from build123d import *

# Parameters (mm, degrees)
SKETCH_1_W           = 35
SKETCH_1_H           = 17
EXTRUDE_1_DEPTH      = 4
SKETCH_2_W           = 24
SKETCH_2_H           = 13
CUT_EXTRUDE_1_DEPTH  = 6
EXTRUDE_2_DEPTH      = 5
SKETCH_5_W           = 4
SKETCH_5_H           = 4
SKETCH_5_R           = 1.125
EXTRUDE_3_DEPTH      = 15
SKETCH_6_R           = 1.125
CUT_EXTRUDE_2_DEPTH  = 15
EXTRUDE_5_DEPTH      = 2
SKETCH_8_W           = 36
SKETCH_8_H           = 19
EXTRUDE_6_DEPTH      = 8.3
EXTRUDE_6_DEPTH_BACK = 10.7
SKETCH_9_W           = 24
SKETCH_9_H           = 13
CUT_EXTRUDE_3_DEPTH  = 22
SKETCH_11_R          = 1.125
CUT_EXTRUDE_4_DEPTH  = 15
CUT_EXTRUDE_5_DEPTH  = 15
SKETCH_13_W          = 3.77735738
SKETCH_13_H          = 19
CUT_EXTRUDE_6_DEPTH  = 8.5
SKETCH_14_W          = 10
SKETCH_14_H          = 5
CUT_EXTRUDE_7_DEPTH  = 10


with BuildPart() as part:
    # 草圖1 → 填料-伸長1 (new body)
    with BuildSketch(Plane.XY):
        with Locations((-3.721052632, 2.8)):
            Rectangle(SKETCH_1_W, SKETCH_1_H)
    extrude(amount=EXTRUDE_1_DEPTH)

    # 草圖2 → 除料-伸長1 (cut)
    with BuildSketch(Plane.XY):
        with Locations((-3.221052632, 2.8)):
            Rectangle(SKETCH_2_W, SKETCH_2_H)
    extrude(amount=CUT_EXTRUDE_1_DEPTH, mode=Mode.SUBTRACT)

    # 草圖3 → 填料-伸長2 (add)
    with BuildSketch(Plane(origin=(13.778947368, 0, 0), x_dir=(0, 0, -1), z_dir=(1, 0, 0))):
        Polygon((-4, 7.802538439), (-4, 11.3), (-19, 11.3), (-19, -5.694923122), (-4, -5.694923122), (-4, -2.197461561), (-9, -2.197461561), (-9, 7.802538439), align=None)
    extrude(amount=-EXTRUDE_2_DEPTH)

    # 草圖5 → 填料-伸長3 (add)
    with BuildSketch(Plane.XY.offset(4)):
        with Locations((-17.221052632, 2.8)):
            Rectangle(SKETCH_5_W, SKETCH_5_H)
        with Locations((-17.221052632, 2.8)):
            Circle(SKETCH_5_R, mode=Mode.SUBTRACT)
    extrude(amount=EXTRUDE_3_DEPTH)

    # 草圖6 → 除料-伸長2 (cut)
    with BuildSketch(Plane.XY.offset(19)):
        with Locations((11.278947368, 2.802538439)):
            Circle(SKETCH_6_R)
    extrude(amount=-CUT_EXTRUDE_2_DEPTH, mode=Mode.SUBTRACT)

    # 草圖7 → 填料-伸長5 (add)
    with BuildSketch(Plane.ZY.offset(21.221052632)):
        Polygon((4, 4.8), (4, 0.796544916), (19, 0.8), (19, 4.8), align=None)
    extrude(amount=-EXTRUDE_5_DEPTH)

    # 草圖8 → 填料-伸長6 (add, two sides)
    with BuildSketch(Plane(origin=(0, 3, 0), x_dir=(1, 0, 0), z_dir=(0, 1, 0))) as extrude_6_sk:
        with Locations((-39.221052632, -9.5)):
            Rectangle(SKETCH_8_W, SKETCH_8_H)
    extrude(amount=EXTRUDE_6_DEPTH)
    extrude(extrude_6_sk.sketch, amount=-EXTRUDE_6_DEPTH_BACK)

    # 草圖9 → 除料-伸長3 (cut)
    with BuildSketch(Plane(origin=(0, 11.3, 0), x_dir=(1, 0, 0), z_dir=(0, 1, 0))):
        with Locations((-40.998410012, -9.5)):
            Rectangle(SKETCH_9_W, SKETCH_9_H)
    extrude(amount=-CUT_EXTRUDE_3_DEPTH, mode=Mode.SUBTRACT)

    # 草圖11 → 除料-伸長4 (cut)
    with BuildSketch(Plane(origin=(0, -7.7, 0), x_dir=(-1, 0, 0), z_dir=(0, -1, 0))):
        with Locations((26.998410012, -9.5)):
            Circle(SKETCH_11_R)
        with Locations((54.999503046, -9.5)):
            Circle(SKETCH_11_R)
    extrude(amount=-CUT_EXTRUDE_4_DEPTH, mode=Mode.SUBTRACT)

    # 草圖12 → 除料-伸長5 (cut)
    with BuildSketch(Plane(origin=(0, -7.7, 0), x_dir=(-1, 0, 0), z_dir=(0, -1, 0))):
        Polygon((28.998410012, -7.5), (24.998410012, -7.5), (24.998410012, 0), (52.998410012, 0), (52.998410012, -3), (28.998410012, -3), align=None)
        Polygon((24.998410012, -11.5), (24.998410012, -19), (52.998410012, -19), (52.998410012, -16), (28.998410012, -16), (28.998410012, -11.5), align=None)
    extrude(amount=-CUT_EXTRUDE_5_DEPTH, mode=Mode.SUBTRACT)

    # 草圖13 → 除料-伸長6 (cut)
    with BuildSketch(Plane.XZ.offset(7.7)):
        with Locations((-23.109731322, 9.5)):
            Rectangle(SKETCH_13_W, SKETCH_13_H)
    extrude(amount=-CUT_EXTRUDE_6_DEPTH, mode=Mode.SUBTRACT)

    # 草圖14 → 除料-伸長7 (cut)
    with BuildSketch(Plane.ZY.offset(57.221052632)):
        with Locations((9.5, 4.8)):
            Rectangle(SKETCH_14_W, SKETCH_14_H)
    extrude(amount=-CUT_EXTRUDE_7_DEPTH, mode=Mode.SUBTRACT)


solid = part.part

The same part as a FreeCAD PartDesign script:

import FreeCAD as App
import Part
import Sketcher
from FreeCAD import Vector
Q = App.Units.Quantity


def add_polygon(sketch, points):
    """Adds a closed chain of lines whose ends are joined by coincident constraints."""
    first, n = sketch.GeometryCount, len(points)
    for a, b in zip(points, points[1:] + points[:1]):
        sketch.addGeometry(Part.LineSegment(App.Vector(*a, 0), App.Vector(*b, 0)), False)
    for i in range(n):
        sketch.addConstraint(Sketcher.Constraint("Coincident", first + i, 2, first + (i + 1) % n, 1))

doc = App.newDocument("Part")
params = doc.addObject("Spreadsheet::Sheet", "Params")
for row, (alias, value) in enumerate([
    ("sketch1_width", "35 mm"),
    ("sketch1_height", "17 mm"),
    ("pad1_length", "4 mm"),
    ("sketch2_width", "24 mm"),
    ("sketch2_height", "13 mm"),
    ("pocket1_length", "6 mm"),
    ("sketch3_width", "10 mm"),
    ("sketch3_height", "15 mm"),
    ("sketch3_height2", "5 mm"),
    ("pad2_length", "5 mm"),
    ("sketch4_diameter", "2.25 mm"),
    ("sketch4_width", "4 mm"),
    ("pad3_length", "15 mm"),
    ("sketch5_diameter", "2.25 mm"),
    ("pocket2_length", "15 mm"),
    ("sketch6_width", "4 mm"),
    ("sketch6_height", "15 mm"),
    ("pad4_length", "2 mm"),
    ("sketch7_width", "36 mm"),
    ("sketch7_height", "19 mm"),
    ("pad5_length", "8.3 mm"),
    ("pad5_length2", "10.7 mm"),
    ("sketch8_width", "24 mm"),
    ("sketch8_height", "13 mm"),
    ("pocket3_length", "22 mm"),
    ("sketch9_diameter", "2.25 mm"),
    ("pocket4_length", "15 mm"),
    ("sketch10_width", "4 mm"),
    ("sketch10_width2", "24 mm"),
    ("sketch10_height", "3 mm"),
    ("sketch10_height2", "4.5 mm"),
    ("pocket5_length", "15 mm"),
    ("sketch11_height", "19 mm"),
    ("pocket6_length", "8.5 mm"),
    ("sketch12_width", "5 mm"),
    ("sketch12_height", "10 mm"),
    ("pocket7_length", "10 mm"),
], start=1):
    params.set(f"A{row}", alias)
    params.set(f"B{row}", "=" + value)
    params.setAlias(f"B{row}", alias)

body = doc.addObject("PartDesign::Body", "Body")

sketch1 = doc.addObject("Sketcher::SketchObject", "Sketch")
body.addObject(sketch1)
sketch1.AttachmentSupport = (doc.XY_Plane, [""])
sketch1.MapMode = "FlatFace"
add_polygon(sketch1, [(-21, 11), (-21, -6), (14, -6), (14, 11)])
sketch1.addConstraint([
    Sketcher.Constraint("Vertical", 0),
    Sketcher.Constraint("Horizontal", 1),
    Sketcher.Constraint("Vertical", 2),
    Sketcher.Constraint("Horizontal", 3),
    Sketcher.Constraint("DistanceX", 1, 1, 1, 2, Q("35 mm")),
    Sketcher.Constraint("DistanceY", 0, 2, 0, 1, Q("17 mm")),
    Sketcher.Constraint("DistanceY", 0, 2, -1, 1, Q("5.7 mm")),
    Sketcher.Constraint("DistanceX", 0, 2, -1, 1, Q("21.221053 mm")),
])
sketch1.setExpression("Constraints[8]", "Params.sketch1_width")
sketch1.setExpression("Constraints[9]", "Params.sketch1_height")
pad1 = doc.addObject("PartDesign::Pad", "Pad")
body.addObject(pad1)
pad1.Profile = sketch1
pad1.setExpression("Length", "Params.pad1_length")

sketch2 = doc.addObject("Sketcher::SketchObject", "Sketch001")
body.addObject(sketch2)
sketch2.AttachmentSupport = (doc.XY_Plane, [""])
sketch2.MapMode = "FlatFace"
add_polygon(sketch2, [(-15, 9), (-15, -4), (9, -4), (9, 9)])
sketch2.addConstraint([
    Sketcher.Constraint("Vertical", 0),
    Sketcher.Constraint("Horizontal", 1),
    Sketcher.Constraint("Vertical", 2),
    Sketcher.Constraint("Horizontal", 3),
    Sketcher.Constraint("DistanceX", 1, 1, 1, 2, Q("24 mm")),
    Sketcher.Constraint("DistanceY", 0, 2, 0, 1, Q("13 mm")),
    Sketcher.Constraint("DistanceY", 0, 2, -1, 1, Q("3.7 mm")),
    Sketcher.Constraint("DistanceX", 0, 2, -1, 1, Q("15.221053 mm")),
])
sketch2.setExpression("Constraints[8]", "Params.sketch2_width")
sketch2.setExpression("Constraints[9]", "Params.sketch2_height")
pocket1 = doc.addObject("PartDesign::Pocket", "Pocket")
body.addObject(pocket1)
pocket1.Profile = sketch2
pocket1.setExpression("Length", "Params.pocket1_length")
pocket1.Reversed = True

sketch3 = doc.addObject("Sketcher::SketchObject", "Sketch002")
body.addObject(sketch3)
sketch3.AttachmentSupport = (doc.YZ_Plane, [""])
sketch3.MapMode = "FlatFace"
sketch3.AttachmentOffset = App.Placement(Vector(0, 0, 13.778947), App.Rotation())
add_polygon(sketch3, [(7.8, 4), (11.3, 4), (11.3, 19), (-5.7, 19), (-5.7, 4), (-2.2, 4), (-2.2, 9), (7.8, 9)])
sketch3.addConstraint([
    Sketcher.Constraint("Horizontal", 0),
    Sketcher.Constraint("Vertical", 1),
    Sketcher.Constraint("Horizontal", 2),
    Sketcher.Constraint("Vertical", 3),
    Sketcher.Constraint("Horizontal", 4),
    Sketcher.Constraint("Vertical", 5),
    Sketcher.Constraint("Horizontal", 6),
    Sketcher.Constraint("Vertical", 7),
    Sketcher.Constraint("Horizontal", 0, 2, 3, 2),
    Sketcher.Constraint("Equal", 0, 4),
    Sketcher.Constraint("DistanceX", 6, 1, 6, 2, Q("10 mm")),
    Sketcher.Constraint("DistanceY", 1, 1, 1, 2, Q("15 mm")),
    Sketcher.Constraint("DistanceY", 5, 1, 5, 2, Q("5 mm")),
    Sketcher.Constraint("DistanceY", -1, 1, 0, 2, Q("4 mm")),
    Sketcher.Constraint("DistanceX", -1, 1, 0, 2, Q("11.3 mm")),
    Sketcher.Constraint("DistanceX", 0, 1, 0, 2, Q("3.497462 mm")),
])
sketch3.setExpression("Constraints[18]", "Params.sketch3_width")
sketch3.setExpression("Constraints[19]", "Params.sketch3_height")
sketch3.setExpression("Constraints[20]", "Params.sketch3_height2")
pad2 = doc.addObject("PartDesign::Pad", "Pad001")
body.addObject(pad2)
pad2.Profile = sketch3
pad2.setExpression("Length", "Params.pad2_length")
pad2.Reversed = True

sketch4 = doc.addObject("Sketcher::SketchObject", "Sketch003")
body.addObject(sketch4)
sketch4.AttachmentSupport = (doc.XY_Plane, [""])
sketch4.MapMode = "FlatFace"
sketch4.AttachmentOffset = App.Placement(Vector(0, 0, 4), App.Rotation())
add_polygon(sketch4, [(-19.2, 4.8), (-19.2, 0.8), (-15.2, 0.8), (-15.2, 4.8)])
sketch4.addGeometry(Part.Circle(Vector(-17.2, 2.8, 0), Vector(0, 0, 1), 1.1), False)
sketch4.addConstraint([
    Sketcher.Constraint("Vertical", 0),
    Sketcher.Constraint("Horizontal", 1),
    Sketcher.Constraint("Vertical", 2),
    Sketcher.Constraint("Horizontal", 3),
    Sketcher.Constraint("Equal", 3, 0),
    Sketcher.Constraint("Diameter", 4, Q("2.25 mm")),
    Sketcher.Constraint("DistanceX", 1, 1, 1, 2, Q("4 mm")),
    Sketcher.Constraint("DistanceX", 0, 2, 4, 3, Q("2 mm")),
    Sketcher.Constraint("DistanceY", 0, 2, 4, 3, Q("2 mm")),
    Sketcher.Constraint("DistanceY", -1, 1, 4, 3, Q("2.8 mm")),
    Sketcher.Constraint("DistanceX", 4, 3, -1, 1, Q("17.221053 mm")),
])
sketch4.setExpression("Constraints[9]", "Params.sketch4_diameter")
sketch4.setExpression("Constraints[10]", "Params.sketch4_width")
pad3 = doc.addObject("PartDesign::Pad", "Pad002")
body.addObject(pad3)
pad3.Profile = sketch4
pad3.setExpression("Length", "Params.pad3_length")

sketch5 = doc.addObject("Sketcher::SketchObject", "Sketch004")
body.addObject(sketch5)
sketch5.AttachmentSupport = (doc.XY_Plane, [""])
sketch5.MapMode = "FlatFace"
sketch5.AttachmentOffset = App.Placement(Vector(0, 0, 19), App.Rotation())
sketch5.addGeometry(Part.Circle(Vector(11.3, 2.8, 0), Vector(0, 0, 1), 1.1), False)
sketch5.addConstraint([
    Sketcher.Constraint("Diameter", 0, Q("2.25 mm")),
    Sketcher.Constraint("DistanceY", -1, 1, 0, 3, Q("2.802538 mm")),
    Sketcher.Constraint("DistanceX", -1, 1, 0, 3, Q("11.278947 mm")),
])
sketch5.setExpression("Constraints[0]", "Params.sketch5_diameter")
pocket2 = doc.addObject("PartDesign::Pocket", "Pocket001")
body.addObject(pocket2)
pocket2.Profile = sketch5
pocket2.setExpression("Length", "Params.pocket2_length")

sketch6 = doc.addObject("Sketcher::SketchObject", "Sketch005")
body.addObject(sketch6)
sketch6.AttachmentSupport = (doc.YZ_Plane, [""])
sketch6.MapMode = "FlatFace"
sketch6.AttachmentOffset = App.Placement(Vector(0, 0, -21.221053), App.Rotation())
add_polygon(sketch6, [(4.8, 4), (0.8, 4), (0.8, 19), (4.8, 19)])
sketch6.addConstraint([
    Sketcher.Constraint("Horizontal", 0),
    Sketcher.Constraint("Horizontal", 2),
    Sketcher.Constraint("Vertical", 3),
    Sketcher.Constraint("DistanceX", 2, 1, 2, 2, Q("4 mm")),
    Sketcher.Constraint("DistanceY", 3, 2, 3, 1, Q("15 mm")),
    Sketcher.Constraint("DistanceY", -1, 1, 0, 2, Q("4 mm")),
    Sketcher.Constraint("DistanceX", -1, 1, 1, 2, Q("0.8 mm")),
    Sketcher.Constraint("DistanceX", 0, 2, 0, 1, Q("4.003455 mm")),
])
sketch6.setExpression("Constraints[7]", "Params.sketch6_width")
sketch6.setExpression("Constraints[8]", "Params.sketch6_height")
pad4 = doc.addObject("PartDesign::Pad", "Pad003")
body.addObject(pad4)
pad4.Profile = sketch6
pad4.setExpression("Length", "Params.pad4_length")

sketch7 = doc.addObject("Sketcher::SketchObject", "Sketch006")
body.addObject(sketch7)
sketch7.AttachmentSupport = (doc.XZ_Plane, [""])
sketch7.MapMode = "FlatFace"
sketch7.AttachmentOffset = App.Placement(Vector(0, 0, -3), App.Rotation())
add_polygon(sketch7, [(-57, 0), (-57, 19), (-21, 19), (-21, 0)])
sketch7.addConstraint([
    Sketcher.Constraint("Vertical", 0),
    Sketcher.Constraint("Horizontal", 1),
    Sketcher.Constraint("Vertical", 2),
    Sketcher.Constraint("Horizontal", 3),
    Sketcher.Constraint("PointOnObject", 2, 2, -1),
    Sketcher.Constraint("DistanceX", 1, 1, 1, 2, Q("36 mm")),
    Sketcher.Constraint("DistanceY", 0, 1, 0, 2, Q("19 mm")),
    Sketcher.Constraint("DistanceX", 0, 2, -1, 1, Q("57.221053 mm")),
])
sketch7.setExpression("Constraints[9]", "Params.sketch7_width")
sketch7.setExpression("Constraints[10]", "Params.sketch7_height")
pad5 = doc.addObject("PartDesign::Pad", "Pad004")
body.addObject(pad5)
pad5.Profile = sketch7
pad5.Type = "TwoLengths"
pad5.setExpression("Length", "Params.pad5_length")
pad5.setExpression("Length2", "Params.pad5_length2")
pad5.Reversed = True

sketch8 = doc.addObject("Sketcher::SketchObject", "Sketch007")
body.addObject(sketch8)
sketch8.AttachmentSupport = (doc.XZ_Plane, [""])
sketch8.MapMode = "FlatFace"
sketch8.AttachmentOffset = App.Placement(Vector(0, 0, -11.3), App.Rotation())
add_polygon(sketch8, [(-53, 3), (-53, 16), (-29, 16), (-29, 3)])
sketch8.addConstraint([
    Sketcher.Constraint("Vertical", 0),
    Sketcher.Constraint("Horizontal", 1),
    Sketcher.Constraint("Vertical", 2),
    Sketcher.Constraint("Horizontal", 3),
    Sketcher.Constraint("DistanceX", 1, 1, 1, 2, Q("24 mm")),
    Sketcher.Constraint("DistanceY", 0, 1, 0, 2, Q("13 mm")),
    Sketcher.Constraint("DistanceY", -1, 1, 0, 2, Q("16 mm")),
    Sketcher.Constraint("DistanceX", 0, 2, -1, 1, Q("52.99841 mm")),
])
sketch8.setExpression("Constraints[8]", "Params.sketch8_width")
sketch8.setExpression("Constraints[9]", "Params.sketch8_height")
pocket3 = doc.addObject("PartDesign::Pocket", "Pocket002")
body.addObject(pocket3)
pocket3.Profile = sketch8
pocket3.setExpression("Length", "Params.pocket3_length")
pocket3.Reversed = True

sketch9 = doc.addObject("Sketcher::SketchObject", "Sketch008")
body.addObject(sketch9)
sketch9.AttachmentSupport = (doc.XZ_Plane, [""])
sketch9.MapMode = "FlatFace"
sketch9.AttachmentOffset = App.Placement(Vector(0, 0, 7.7), App.Rotation())
sketch9.addGeometry([
    Part.Circle(Vector(-27, 9.5, 0), Vector(0, 0, 1), 1.1),
    Part.Circle(Vector(-55, 9.5, 0), Vector(0, 0, 1), 1.1),
], False)
sketch9.addConstraint([
    Sketcher.Constraint("Equal", 0, 1),
    Sketcher.Constraint("Horizontal", 0, 3, 1, 3),
    Sketcher.Constraint("Diameter", 0, Q("2.25 mm")),
    Sketcher.Constraint("DistanceY", -1, 1, 0, 3, Q("9.5 mm")),
    Sketcher.Constraint("DistanceX", 0, 3, -1, 1, Q("26.99841 mm")),
    Sketcher.Constraint("DistanceX", 1, 3, -1, 1, Q("54.999503 mm")),
])
sketch9.setExpression("Constraints[2]", "Params.sketch9_diameter")
pocket4 = doc.addObject("PartDesign::Pocket", "Pocket003")
body.addObject(pocket4)
pocket4.Profile = sketch9
pocket4.setExpression("Length", "Params.pocket4_length")

sketch10 = doc.addObject("Sketcher::SketchObject", "Sketch009")
body.addObject(sketch10)
sketch10.AttachmentSupport = (doc.XZ_Plane, [""])
sketch10.MapMode = "FlatFace"
sketch10.AttachmentOffset = App.Placement(Vector(0, 0, 7.7), App.Rotation())
add_polygon(sketch10, [(-25, 7.5), (-29, 7.5), (-29, 3), (-53, 3), (-53, 0), (-25, 0)])
add_polygon(sketch10, [(-25, 11.5), (-25, 19), (-53, 19), (-53, 16), (-29, 16), (-29, 11.5)])
sketch10.addConstraint([
    Sketcher.Constraint("Horizontal", 0),
    Sketcher.Constraint("Vertical", 1),
    Sketcher.Constraint("Horizontal", 2),
    Sketcher.Constraint("Vertical", 3),
    Sketcher.Constraint("Horizontal", 4),
    Sketcher.Constraint("Vertical", 5),
    Sketcher.Constraint("Vertical", 6),
    Sketcher.Constraint("Horizontal", 7),
    Sketcher.Constraint("Vertical", 8),
    Sketcher.Constraint("Horizontal", 9),
    Sketcher.Constraint("Vertical", 10),
    Sketcher.Constraint("Horizontal", 11),
    Sketcher.Constraint("PointOnObject", 3, 2, -1),
    Sketcher.Constraint("Vertical", 5, 2, 6, 2),
    Sketcher.Constraint("Vertical", 3, 2, 7, 2),
    Sketcher.Constraint("Vertical", 1, 2, 9, 2),
    Sketcher.Constraint("Equal", 5, 6),
    Sketcher.Constraint("Equal", 3, 8),
    Sketcher.Constraint("DistanceX", 0, 2, 0, 1, Q("4 mm")),
    Sketcher.Constraint("DistanceX", 2, 2, 2, 1, Q("24 mm")),
    Sketcher.Constraint("DistanceY", 3, 2, 3, 1, Q("3 mm")),
    Sketcher.Constraint("DistanceY", 1, 2, 1, 1, Q("4.5 mm")),
    Sketcher.Constraint("DistanceY", -1, 1, 6, 2, Q("19 mm")),
    Sketcher.Constraint("DistanceX", 0, 2, -1, 1, Q("28.99841 mm")),
])
sketch10.setExpression("Constraints[30]", "Params.sketch10_width")
sketch10.setExpression("Constraints[31]", "Params.sketch10_width2")
sketch10.setExpression("Constraints[32]", "Params.sketch10_height")
sketch10.setExpression("Constraints[33]", "Params.sketch10_height2")
pocket5 = doc.addObject("PartDesign::Pocket", "Pocket004")
body.addObject(pocket5)
pocket5.Profile = sketch10
pocket5.setExpression("Length", "Params.pocket5_length")

sketch11 = doc.addObject("Sketcher::SketchObject", "Sketch010")
body.addObject(sketch11)
sketch11.AttachmentSupport = (doc.XZ_Plane, [""])
sketch11.MapMode = "FlatFace"
sketch11.AttachmentOffset = App.Placement(Vector(0, 0, 7.7), App.Rotation())
add_polygon(sketch11, [(-25, 19), (-25, 0), (-21.2, 0), (-21.2, 19)])
sketch11.addConstraint([
    Sketcher.Constraint("Vertical", 0),
    Sketcher.Constraint("Horizontal", 1),
    Sketcher.Constraint("Vertical", 2),
    Sketcher.Constraint("Horizontal", 3),
    Sketcher.Constraint("PointOnObject", 0, 2, -1),
    Sketcher.Constraint("DistanceY", 0, 2, 0, 1, Q("19 mm")),
    Sketcher.Constraint("DistanceX", 1, 1, 1, 2, Q("3.777357 mm")),
    Sketcher.Constraint("DistanceX", 0, 2, -1, 1, Q("24.99841 mm")),
])
sketch11.setExpression("Constraints[9]", "Params.sketch11_height")
pocket6 = doc.addObject("PartDesign::Pocket", "Pocket005")
body.addObject(pocket6)
pocket6.Profile = sketch11
pocket6.setExpression("Length", "Params.pocket6_length")

sketch12 = doc.addObject("Sketcher::SketchObject", "Sketch011")
body.addObject(sketch12)
sketch12.AttachmentSupport = (doc.YZ_Plane, [""])
sketch12.MapMode = "FlatFace"
sketch12.AttachmentOffset = App.Placement(Vector(0, 0, -57.221053), App.Rotation())
add_polygon(sketch12, [(7, 4), (2, 4), (2, 14), (7, 14)])
sketch12.addConstraint([
    Sketcher.Constraint("Horizontal", 0),
    Sketcher.Constraint("Vertical", 1),
    Sketcher.Constraint("Horizontal", 2),
    Sketcher.Constraint("Vertical", 3),
    Sketcher.Constraint("DistanceX", 0, 2, 0, 1, Q("5 mm")),
    Sketcher.Constraint("DistanceY", 1, 1, 1, 2, Q("10 mm")),
    Sketcher.Constraint("DistanceX", -1, 1, 0, 2, Q("2.3 mm")),
    Sketcher.Constraint("DistanceY", -1, 1, 0, 2, Q("4.5 mm")),
])
sketch12.setExpression("Constraints[8]", "Params.sketch12_width")
sketch12.setExpression("Constraints[9]", "Params.sketch12_height")
pocket7 = doc.addObject("PartDesign::Pocket", "Pocket006")
body.addObject(pocket7)
pocket7.Profile = sketch12
pocket7.setExpression("Length", "Params.pocket7_length")
pocket7.Reversed = True

doc.recompute()
